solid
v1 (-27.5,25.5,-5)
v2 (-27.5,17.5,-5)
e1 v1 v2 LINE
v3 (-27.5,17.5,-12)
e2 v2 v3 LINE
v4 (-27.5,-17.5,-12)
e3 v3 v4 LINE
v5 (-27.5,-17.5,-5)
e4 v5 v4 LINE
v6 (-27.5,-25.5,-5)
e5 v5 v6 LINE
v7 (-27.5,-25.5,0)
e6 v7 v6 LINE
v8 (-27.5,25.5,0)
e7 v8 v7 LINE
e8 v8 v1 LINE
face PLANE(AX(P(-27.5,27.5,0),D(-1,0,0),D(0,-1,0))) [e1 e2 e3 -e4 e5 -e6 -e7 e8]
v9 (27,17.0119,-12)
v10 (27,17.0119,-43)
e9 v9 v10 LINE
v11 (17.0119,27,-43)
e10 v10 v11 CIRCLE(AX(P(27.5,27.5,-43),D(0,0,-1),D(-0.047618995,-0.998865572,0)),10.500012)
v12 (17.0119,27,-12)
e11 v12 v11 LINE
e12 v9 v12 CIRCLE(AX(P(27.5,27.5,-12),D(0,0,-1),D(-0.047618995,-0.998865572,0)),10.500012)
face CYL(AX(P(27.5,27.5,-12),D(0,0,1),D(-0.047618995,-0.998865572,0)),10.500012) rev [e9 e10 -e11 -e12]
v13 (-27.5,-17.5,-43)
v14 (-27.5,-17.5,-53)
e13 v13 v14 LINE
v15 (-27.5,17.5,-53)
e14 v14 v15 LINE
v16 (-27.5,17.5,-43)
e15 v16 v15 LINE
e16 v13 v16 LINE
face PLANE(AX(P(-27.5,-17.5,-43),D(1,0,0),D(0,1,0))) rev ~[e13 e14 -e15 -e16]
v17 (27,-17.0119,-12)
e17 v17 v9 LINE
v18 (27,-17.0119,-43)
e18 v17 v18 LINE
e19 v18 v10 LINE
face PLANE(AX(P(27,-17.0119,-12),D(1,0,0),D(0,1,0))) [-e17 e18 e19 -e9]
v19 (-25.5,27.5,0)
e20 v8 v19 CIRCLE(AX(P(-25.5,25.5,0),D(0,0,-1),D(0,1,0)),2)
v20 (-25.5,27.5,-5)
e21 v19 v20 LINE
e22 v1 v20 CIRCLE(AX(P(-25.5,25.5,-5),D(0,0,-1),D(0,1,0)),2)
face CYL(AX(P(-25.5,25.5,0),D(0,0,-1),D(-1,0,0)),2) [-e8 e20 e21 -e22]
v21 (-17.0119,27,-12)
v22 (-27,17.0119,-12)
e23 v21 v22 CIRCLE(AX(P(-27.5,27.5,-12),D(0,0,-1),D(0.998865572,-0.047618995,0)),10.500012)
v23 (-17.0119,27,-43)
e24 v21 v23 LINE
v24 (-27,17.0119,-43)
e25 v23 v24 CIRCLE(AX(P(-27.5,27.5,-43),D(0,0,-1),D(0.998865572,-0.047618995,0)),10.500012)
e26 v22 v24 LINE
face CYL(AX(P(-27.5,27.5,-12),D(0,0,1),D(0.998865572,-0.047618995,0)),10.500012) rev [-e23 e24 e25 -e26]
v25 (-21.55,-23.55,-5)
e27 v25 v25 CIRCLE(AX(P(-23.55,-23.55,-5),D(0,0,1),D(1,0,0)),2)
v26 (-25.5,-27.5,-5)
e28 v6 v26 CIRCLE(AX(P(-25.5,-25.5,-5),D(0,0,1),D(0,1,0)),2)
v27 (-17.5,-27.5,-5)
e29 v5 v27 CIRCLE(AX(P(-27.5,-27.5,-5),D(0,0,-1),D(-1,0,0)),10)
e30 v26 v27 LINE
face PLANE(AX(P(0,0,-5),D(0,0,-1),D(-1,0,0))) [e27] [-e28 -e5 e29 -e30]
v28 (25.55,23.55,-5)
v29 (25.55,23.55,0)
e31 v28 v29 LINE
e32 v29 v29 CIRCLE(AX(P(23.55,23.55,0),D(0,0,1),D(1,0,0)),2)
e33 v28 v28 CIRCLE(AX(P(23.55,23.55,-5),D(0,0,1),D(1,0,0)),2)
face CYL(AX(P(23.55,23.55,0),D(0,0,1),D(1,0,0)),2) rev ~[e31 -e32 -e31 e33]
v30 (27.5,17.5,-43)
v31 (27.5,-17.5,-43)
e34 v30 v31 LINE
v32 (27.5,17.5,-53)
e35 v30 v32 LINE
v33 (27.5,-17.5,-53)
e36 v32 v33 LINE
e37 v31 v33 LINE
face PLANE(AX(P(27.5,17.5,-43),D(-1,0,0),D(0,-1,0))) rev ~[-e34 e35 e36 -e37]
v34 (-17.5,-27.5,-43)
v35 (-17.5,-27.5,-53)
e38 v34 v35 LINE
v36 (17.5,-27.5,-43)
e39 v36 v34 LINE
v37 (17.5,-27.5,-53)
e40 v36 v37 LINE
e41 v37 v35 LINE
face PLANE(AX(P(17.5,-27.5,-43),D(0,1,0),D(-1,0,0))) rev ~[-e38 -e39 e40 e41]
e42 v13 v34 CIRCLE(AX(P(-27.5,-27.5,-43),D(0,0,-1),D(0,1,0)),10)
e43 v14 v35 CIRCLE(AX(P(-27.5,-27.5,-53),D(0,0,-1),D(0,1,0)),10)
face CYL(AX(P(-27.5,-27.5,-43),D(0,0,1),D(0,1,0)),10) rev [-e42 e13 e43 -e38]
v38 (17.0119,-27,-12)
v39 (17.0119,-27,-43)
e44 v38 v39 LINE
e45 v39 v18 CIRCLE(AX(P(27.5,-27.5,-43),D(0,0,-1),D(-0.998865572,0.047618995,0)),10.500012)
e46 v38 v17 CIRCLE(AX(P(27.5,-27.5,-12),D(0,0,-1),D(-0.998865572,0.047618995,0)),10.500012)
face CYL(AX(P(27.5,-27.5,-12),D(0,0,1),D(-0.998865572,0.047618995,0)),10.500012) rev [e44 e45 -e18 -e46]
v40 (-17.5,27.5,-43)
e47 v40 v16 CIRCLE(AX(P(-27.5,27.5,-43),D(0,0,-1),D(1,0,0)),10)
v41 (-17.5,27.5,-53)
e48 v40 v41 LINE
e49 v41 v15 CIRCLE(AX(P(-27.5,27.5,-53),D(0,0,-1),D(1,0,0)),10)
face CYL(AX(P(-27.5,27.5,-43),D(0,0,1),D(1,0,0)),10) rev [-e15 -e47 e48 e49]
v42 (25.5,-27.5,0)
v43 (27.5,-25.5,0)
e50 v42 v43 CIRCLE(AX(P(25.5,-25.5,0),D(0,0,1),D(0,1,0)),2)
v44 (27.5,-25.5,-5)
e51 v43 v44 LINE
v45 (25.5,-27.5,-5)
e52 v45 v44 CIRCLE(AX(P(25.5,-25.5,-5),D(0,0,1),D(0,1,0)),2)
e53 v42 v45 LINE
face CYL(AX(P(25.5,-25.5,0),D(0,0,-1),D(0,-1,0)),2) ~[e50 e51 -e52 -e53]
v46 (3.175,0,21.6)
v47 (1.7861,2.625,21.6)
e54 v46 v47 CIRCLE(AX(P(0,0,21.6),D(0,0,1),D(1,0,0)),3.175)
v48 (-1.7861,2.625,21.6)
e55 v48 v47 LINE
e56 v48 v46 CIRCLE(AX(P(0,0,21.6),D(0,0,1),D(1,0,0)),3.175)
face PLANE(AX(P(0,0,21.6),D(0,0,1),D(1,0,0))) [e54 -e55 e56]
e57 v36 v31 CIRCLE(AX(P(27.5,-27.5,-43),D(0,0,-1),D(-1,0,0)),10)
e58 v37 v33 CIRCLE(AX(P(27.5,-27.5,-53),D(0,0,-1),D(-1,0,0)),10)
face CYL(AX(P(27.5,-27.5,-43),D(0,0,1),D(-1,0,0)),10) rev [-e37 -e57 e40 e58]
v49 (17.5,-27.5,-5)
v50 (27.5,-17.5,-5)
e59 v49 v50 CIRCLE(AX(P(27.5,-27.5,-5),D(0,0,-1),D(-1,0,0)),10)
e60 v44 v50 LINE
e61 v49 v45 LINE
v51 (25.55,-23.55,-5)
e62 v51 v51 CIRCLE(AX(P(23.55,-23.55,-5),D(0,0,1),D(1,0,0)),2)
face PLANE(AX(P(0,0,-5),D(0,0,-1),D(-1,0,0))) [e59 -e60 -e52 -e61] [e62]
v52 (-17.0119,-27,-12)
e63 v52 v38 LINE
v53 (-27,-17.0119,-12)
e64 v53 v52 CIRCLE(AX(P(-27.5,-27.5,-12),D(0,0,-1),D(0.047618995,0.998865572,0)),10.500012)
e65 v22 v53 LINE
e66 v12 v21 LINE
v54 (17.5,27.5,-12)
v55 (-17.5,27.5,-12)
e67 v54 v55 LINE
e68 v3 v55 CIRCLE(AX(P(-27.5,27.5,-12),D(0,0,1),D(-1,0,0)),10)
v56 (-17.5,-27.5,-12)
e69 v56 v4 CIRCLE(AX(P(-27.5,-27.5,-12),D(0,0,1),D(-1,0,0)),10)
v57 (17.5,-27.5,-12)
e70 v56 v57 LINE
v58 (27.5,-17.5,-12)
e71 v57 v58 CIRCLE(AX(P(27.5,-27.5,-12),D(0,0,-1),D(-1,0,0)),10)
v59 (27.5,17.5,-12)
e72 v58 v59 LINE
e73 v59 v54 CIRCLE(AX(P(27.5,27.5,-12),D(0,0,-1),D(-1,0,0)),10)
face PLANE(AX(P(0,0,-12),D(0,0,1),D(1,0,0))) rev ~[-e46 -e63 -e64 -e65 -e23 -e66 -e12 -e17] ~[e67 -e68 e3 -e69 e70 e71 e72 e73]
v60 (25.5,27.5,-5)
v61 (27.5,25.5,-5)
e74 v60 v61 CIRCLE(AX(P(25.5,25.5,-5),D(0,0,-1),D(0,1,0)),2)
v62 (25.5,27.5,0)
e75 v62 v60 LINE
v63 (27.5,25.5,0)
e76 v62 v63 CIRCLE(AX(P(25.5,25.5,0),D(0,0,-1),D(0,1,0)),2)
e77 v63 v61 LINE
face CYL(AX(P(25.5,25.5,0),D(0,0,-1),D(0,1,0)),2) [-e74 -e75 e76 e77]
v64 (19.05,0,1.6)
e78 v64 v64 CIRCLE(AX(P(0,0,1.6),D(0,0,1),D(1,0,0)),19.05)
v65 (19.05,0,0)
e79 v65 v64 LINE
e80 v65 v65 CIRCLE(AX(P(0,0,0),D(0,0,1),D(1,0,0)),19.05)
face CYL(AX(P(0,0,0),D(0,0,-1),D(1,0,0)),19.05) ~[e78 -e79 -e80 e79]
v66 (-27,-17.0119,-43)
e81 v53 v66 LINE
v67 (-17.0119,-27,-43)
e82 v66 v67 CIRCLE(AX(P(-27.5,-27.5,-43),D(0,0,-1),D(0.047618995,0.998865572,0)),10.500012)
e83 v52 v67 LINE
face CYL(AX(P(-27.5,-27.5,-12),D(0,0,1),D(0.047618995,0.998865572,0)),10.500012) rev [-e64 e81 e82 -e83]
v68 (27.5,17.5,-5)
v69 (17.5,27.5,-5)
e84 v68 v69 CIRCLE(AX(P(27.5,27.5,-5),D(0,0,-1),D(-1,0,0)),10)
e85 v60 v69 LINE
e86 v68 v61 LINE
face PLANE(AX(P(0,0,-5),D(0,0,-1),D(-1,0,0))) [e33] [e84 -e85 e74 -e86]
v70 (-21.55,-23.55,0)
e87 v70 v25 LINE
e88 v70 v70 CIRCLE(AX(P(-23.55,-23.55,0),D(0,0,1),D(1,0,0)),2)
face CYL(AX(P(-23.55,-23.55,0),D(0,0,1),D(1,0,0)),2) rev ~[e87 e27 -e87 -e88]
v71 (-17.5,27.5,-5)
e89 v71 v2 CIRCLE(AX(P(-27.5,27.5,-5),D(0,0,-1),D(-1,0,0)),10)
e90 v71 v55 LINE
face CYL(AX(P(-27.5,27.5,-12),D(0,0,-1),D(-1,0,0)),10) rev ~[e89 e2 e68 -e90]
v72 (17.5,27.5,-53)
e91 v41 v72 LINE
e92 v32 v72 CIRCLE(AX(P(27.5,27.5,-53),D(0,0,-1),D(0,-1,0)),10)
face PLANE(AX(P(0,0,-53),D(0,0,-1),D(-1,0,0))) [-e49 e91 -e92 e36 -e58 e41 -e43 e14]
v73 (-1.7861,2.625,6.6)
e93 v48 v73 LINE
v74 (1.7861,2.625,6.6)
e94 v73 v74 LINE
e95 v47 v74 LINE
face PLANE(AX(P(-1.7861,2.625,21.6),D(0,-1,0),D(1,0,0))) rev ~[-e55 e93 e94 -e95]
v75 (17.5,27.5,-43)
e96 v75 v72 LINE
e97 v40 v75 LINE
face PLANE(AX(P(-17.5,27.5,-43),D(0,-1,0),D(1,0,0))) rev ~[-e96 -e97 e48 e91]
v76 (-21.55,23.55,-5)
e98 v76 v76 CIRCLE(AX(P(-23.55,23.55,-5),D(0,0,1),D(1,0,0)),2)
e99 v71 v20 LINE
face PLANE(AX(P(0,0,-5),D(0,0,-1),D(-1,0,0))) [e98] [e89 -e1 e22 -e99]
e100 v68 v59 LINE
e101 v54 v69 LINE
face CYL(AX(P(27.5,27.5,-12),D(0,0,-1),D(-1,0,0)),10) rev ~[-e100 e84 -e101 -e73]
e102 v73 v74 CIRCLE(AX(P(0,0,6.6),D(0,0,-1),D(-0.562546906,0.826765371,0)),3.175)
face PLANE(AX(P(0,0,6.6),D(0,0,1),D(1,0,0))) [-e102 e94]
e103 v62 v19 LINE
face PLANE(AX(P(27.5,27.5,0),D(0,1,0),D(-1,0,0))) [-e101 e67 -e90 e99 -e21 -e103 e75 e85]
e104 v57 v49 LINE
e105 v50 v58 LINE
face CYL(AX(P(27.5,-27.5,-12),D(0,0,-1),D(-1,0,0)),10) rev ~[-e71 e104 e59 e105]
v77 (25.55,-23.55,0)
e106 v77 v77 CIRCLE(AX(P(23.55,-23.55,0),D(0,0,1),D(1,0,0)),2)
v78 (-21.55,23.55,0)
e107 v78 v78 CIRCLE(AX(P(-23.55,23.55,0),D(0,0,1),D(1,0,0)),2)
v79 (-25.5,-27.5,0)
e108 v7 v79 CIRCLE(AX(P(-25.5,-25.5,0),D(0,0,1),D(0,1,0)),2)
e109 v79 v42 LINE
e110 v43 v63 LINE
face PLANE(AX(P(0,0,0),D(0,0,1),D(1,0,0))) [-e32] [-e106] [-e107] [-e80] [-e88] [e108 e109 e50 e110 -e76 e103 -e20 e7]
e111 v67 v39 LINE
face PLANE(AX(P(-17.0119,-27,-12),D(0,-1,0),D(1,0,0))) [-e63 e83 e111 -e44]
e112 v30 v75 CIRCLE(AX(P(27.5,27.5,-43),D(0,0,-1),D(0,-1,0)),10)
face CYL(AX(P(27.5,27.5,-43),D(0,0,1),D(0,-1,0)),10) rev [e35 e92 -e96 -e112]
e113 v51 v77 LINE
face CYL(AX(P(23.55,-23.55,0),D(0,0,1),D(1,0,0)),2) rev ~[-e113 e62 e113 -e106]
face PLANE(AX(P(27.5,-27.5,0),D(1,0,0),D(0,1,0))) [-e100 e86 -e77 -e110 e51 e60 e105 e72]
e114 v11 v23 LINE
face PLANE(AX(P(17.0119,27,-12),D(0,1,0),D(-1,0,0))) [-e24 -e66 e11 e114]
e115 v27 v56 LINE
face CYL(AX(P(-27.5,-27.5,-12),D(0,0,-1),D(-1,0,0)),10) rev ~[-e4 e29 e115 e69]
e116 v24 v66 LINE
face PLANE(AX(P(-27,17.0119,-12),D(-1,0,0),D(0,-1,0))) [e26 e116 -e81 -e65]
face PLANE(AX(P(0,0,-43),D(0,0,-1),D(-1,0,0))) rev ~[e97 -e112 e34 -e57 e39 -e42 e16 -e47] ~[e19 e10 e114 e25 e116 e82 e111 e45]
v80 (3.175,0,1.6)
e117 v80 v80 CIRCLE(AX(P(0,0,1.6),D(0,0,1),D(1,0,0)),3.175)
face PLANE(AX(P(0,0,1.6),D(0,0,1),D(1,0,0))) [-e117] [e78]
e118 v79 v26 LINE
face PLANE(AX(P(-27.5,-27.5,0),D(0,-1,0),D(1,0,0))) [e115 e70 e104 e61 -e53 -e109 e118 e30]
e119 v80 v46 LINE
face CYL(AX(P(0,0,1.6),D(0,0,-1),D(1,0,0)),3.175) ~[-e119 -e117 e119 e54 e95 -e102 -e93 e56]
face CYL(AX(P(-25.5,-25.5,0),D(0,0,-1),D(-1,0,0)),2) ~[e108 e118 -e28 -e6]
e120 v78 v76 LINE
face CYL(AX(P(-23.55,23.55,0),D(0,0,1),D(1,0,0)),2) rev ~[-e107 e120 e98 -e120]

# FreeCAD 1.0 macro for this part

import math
import FreeCAD as App
import Part
import Sketcher
Q = App.Units.Quantity


def edges_at(feature, points):
    """Names of the edges that pass closest to the given points."""
    edges = feature.Shape.Edges
    near = lambda p: min(range(len(edges)), key=lambda i: edges[i].distToShape(Part.Vertex(*p))[0])
    return sorted({f"Edge{near(p) + 1}" for p in points})


def add_polygon(sketch, points):
    """Adds a closed chain of lines whose ends are joined by coincident constraints."""
    first, n = sketch.GeometryCount, len(points)
    for a, b in zip(points, points[1:] + points[:1]):
        sketch.addGeometry(Part.LineSegment(App.Vector(*a, 0), App.Vector(*b, 0)), False)
    for i in range(n):
        sketch.addConstraint(Sketcher.Constraint("Coincident", first + i, 2, first + (i + 1) % n, 1))

doc = App.newDocument("Part")
body = doc.addObject("PartDesign::Body", "Body")

# Sketch on XY plane
sketch1 = doc.addObject("Sketcher::SketchObject", "Sketch")
body.addObject(sketch1)
sketch1.AttachmentSupport = (doc.XY_Plane, [""])
sketch1.MapMode = "FlatFace"
add_polygon(sketch1, [(-28, 28), (-28, -28), (28, -28), (28, 28)])  # lines 0-3
sketch1.addConstraint(Sketcher.Constraint("Vertical", 0))
sketch1.addConstraint(Sketcher.Constraint("Horizontal", 1))
sketch1.addConstraint(Sketcher.Constraint("Vertical", 2))
sketch1.addConstraint(Sketcher.Constraint("Horizontal", 3))
sketch1.addConstraint(Sketcher.Constraint("Symmetric", 0, 2, 2, 2, -1, 1))
sketch1.addConstraint(Sketcher.Constraint("Equal", 3, 0))
sketch1.addConstraint(Sketcher.Constraint("DistanceX", 1, 1, 1, 2, Q("55 mm")))
pad1 = doc.addObject("PartDesign::Pad", "Pad")
body.addObject(pad1)
pad1.Profile = sketch1
pad1.Length = 12
pad1.Reversed = True

# Sketch on XY plane
sketch2 = doc.addObject("Sketcher::SketchObject", "Sketch001")
body.addObject(sketch2)
sketch2.AttachmentSupport = (doc.XY_Plane, [""])
sketch2.MapMode = "FlatFace"
sketch2.AttachmentOffset = App.Placement(App.Vector(0, 0, -12), App.Rotation())
sketch2.addGeometry(Part.Circle(App.Vector(-28, 28, 0), App.Vector(0, 0, 1), 10), False)
sketch2.addGeometry(Part.Circle(App.Vector(28, 28, 0), App.Vector(0, 0, 1), 10), False)
sketch2.addGeometry(Part.Circle(App.Vector(-28, -28, 0), App.Vector(0, 0, 1), 10), False)
sketch2.addGeometry(Part.Circle(App.Vector(28, -28, 0), App.Vector(0, 0, 1), 10), False)
sketch2.addConstraint(Sketcher.Constraint("Equal", 0, 1))
sketch2.addConstraint(Sketcher.Constraint("Equal", 1, 2))
sketch2.addConstraint(Sketcher.Constraint("Equal", 2, 3))
sketch2.addConstraint(Sketcher.Constraint("Symmetric", 1, 3, 2, 3, -1, 1))
sketch2.addConstraint(Sketcher.Constraint("Symmetric", 0, 3, 3, 3, -1, 1))
sketch2.addConstraint(Sketcher.Constraint("Symmetric", 0, 3, 1, 3, -2))
sketch2.addConstraint(Sketcher.Constraint("Diameter", 0, Q("20 mm")))
sketch2.addConstraint(Sketcher.Constraint("DistanceX", 0, 3, 1, 3, Q("55 mm")))
sketch2.addConstraint(Sketcher.Constraint("DistanceY", 2, 3, 0, 3, Q("55 mm")))
pocket1 = doc.addObject("PartDesign::Pocket", "Pocket")
body.addObject(pocket1)
pocket1.Profile = sketch2
pocket1.Length = 7
pocket1.Reversed = True

# Sketch on XY plane
sketch3 = doc.addObject("Sketcher::SketchObject", "Sketch002")
body.addObject(sketch3)
sketch3.AttachmentSupport = (doc.XY_Plane, [""])
sketch3.MapMode = "FlatFace"
sketch3.AttachmentOffset = App.Placement(App.Vector(0, 0, -12), App.Rotation())
sketch3.addGeometry(Part.LineSegment(App.Vector(-17, 27, 0), App.Vector(17, 27, 0)), False)
sketch3.addGeometry(Part.ArcOfCircle(Part.Circle(App.Vector(28, 28, 0), App.Vector(0, 0, 1), 11), math.radians(-177), math.radians(-93)), False)
sketch3.addGeometry(Part.LineSegment(App.Vector(27, 17, 0), App.Vector(27, -17, 0)), False)
sketch3.addGeometry(Part.ArcOfCircle(Part.Circle(App.Vector(28, -28, 0), App.Vector(0, 0, 1), 11), math.radians(93), math.radians(177)), False)
sketch3.addGeometry(Part.LineSegment(App.Vector(17, -27, 0), App.Vector(-17, -27, 0)), False)
sketch3.addGeometry(Part.ArcOfCircle(Part.Circle(App.Vector(-28, -28, 0), App.Vector(0, 0, 1), 11), math.radians(3), math.radians(87)), False)
sketch3.addGeometry(Part.LineSegment(App.Vector(-27, -17, 0), App.Vector(-27, 17, 0)), False)
sketch3.addGeometry(Part.ArcOfCircle(Part.Circle(App.Vector(-28, 28, 0), App.Vector(0, 0, 1), 11), math.radians(-87), math.radians(-3)), False)
sketch3.addConstraint(Sketcher.Constraint("Coincident", 0, 2, 1, 1))
sketch3.addConstraint(Sketcher.Constraint("Coincident", 1, 2, 2, 1))
sketch3.addConstraint(Sketcher.Constraint("Coincident", 2, 2, 3, 1))
sketch3.addConstraint(Sketcher.Constraint("Coincident", 3, 2, 4, 1))
sketch3.addConstraint(Sketcher.Constraint("Coincident", 4, 2, 5, 1))
sketch3.addConstraint(Sketcher.Constraint("Coincident", 5, 2, 6, 1))
sketch3.addConstraint(Sketcher.Constraint("Coincident", 6, 2, 7, 1))
sketch3.addConstraint(Sketcher.Constraint("Coincident", 7, 2, 0, 1))
sketch3.addConstraint(Sketcher.Constraint("Horizontal", 0))
sketch3.addConstraint(Sketcher.Constraint("Vertical", 2))
sketch3.addConstraint(Sketcher.Constraint("Horizontal", 4))
sketch3.addConstraint(Sketcher.Constraint("Vertical", 6))
sketch3.addConstraint(Sketcher.Constraint("Equal", 1, 3))
sketch3.addConstraint(Sketcher.Constraint("Equal", 3, 5))
sketch3.addConstraint(Sketcher.Constraint("Equal", 5, 7))
sketch3.addConstraint(Sketcher.Constraint("Symmetric", 1, 3, 5, 3, -1, 1))
sketch3.addConstraint(Sketcher.Constraint("Symmetric", 3, 3, 7, 3, -1, 1))
sketch3.addConstraint(Sketcher.Constraint("Symmetric", 3, 3, 5, 3, -2))
sketch3.addConstraint(Sketcher.Constraint("Horizontal", 2, 2, 5, 2))
sketch3.addConstraint(Sketcher.Constraint("Vertical", 0, 2, 3, 2))
sketch3.addConstraint(Sketcher.Constraint("Equal", 4, 2))
sketch3.addConstraint(Sketcher.Constraint("Radius", 1, Q("10.5 mm")))
sketch3.addConstraint(Sketcher.Constraint("DistanceY", 0, 2, 1, 3, Q("0.5 mm")))
sketch3.addConstraint(Sketcher.Constraint("DistanceX", 1, 2, 1, 3, Q("0.5 mm")))
sketch3.addConstraint(Sketcher.Constraint("DistanceY", -1, 1, 0, 2, Q("27 mm")))
pad2 = doc.addObject("PartDesign::Pad", "Pad001")
body.addObject(pad2)
pad2.Profile = sketch3
pad2.Length = 31
pad2.Reversed = True

# Sketch on XY plane
sketch4 = doc.addObject("Sketcher::SketchObject", "Sketch003")
body.addObject(sketch4)
sketch4.AttachmentSupport = (doc.XY_Plane, [""])
sketch4.MapMode = "FlatFace"
sketch4.AttachmentOffset = App.Placement(App.Vector(0, 0, -43), App.Rotation())
sketch4.addGeometry(Part.ArcOfCircle(Part.Circle(App.Vector(-28, -28, 0), App.Vector(0, 0, 1), 10), math.radians(0), math.radians(90)), False)
sketch4.addGeometry(Part.LineSegment(App.Vector(-28, -18, 0), App.Vector(-28, 18, 0)), False)
sketch4.addGeometry(Part.ArcOfCircle(Part.Circle(App.Vector(-28, 28, 0), App.Vector(0, 0, 1), 10), math.radians(-90), math.radians(0)), False)
sketch4.addGeometry(Part.LineSegment(App.Vector(-18, 28, 0), App.Vector(18, 28, 0)), False)
sketch4.addGeometry(Part.ArcOfCircle(Part.Circle(App.Vector(28, 28, 0), App.Vector(0, 0, 1), 10), math.radians(180), math.radians(270)), False)
sketch4.addGeometry(Part.LineSegment(App.Vector(28, 18, 0), App.Vector(28, -18, 0)), False)
sketch4.addGeometry(Part.ArcOfCircle(Part.Circle(App.Vector(28, -28, 0), App.Vector(0, 0, 1), 10), math.radians(90), math.radians(180)), False)
sketch4.addGeometry(Part.LineSegment(App.Vector(18, -28, 0), App.Vector(-18, -28, 0)), False)
sketch4.addConstraint(Sketcher.Constraint("Coincident", 0, 2, 1, 1))
sketch4.addConstraint(Sketcher.Constraint("Coincident", 1, 2, 2, 1))
sketch4.addConstraint(Sketcher.Constraint("Coincident", 2, 2, 3, 1))
sketch4.addConstraint(Sketcher.Constraint("Coincident", 3, 2, 4, 1))
sketch4.addConstraint(Sketcher.Constraint("Coincident", 4, 2, 5, 1))
sketch4.addConstraint(Sketcher.Constraint("Coincident", 5, 2, 6, 1))
sketch4.addConstraint(Sketcher.Constraint("Coincident", 6, 2, 7, 1))
sketch4.addConstraint(Sketcher.Constraint("Coincident", 7, 2, 0, 1))
sketch4.addConstraint(Sketcher.Constraint("Vertical", 1))
sketch4.addConstraint(Sketcher.Constraint("Horizontal", 3))
sketch4.addConstraint(Sketcher.Constraint("Vertical", 5))
sketch4.addConstraint(Sketcher.Constraint("Horizontal", 7))
sketch4.addConstraint(Sketcher.Constraint("Equal", 0, 2))
sketch4.addConstraint(Sketcher.Constraint("Equal", 2, 4))
sketch4.addConstraint(Sketcher.Constraint("Equal", 4, 6))
sketch4.addConstraint(Sketcher.Constraint("Symmetric", 0, 3, 4, 3, -1, 1))
sketch4.addConstraint(Sketcher.Constraint("Symmetric", 2, 3, 6, 3, -1, 1))
sketch4.addConstraint(Sketcher.Constraint("Symmetric", 2, 3, 4, 3, -2))
sketch4.addConstraint(Sketcher.Constraint("Horizontal", 4, 3, 2, 2))
sketch4.addConstraint(Sketcher.Constraint("Horizontal", 0, 3, 6, 2))
sketch4.addConstraint(Sketcher.Constraint("Vertical", 2, 3, 0, 2))
sketch4.addConstraint(Sketcher.Constraint("Vertical", 6, 3, 4, 2))
sketch4.addConstraint(Sketcher.Constraint("Equal", 7, 1))
sketch4.addConstraint(Sketcher.Constraint("Radius", 0, Q("10 mm")))
sketch4.addConstraint(Sketcher.Constraint("DistanceX", 3, 1, 3, 2, Q("35 mm")))
pad3 = doc.addObject("PartDesign::Pad", "Pad002")
body.addObject(pad3)
pad3.Profile = sketch4
pad3.Length = 10
pad3.Reversed = True

# Sketch on XY plane
sketch5 = doc.addObject("Sketcher::SketchObject", "Sketch004")
body.addObject(sketch5)
sketch5.AttachmentSupport = (doc.XY_Plane, [""])
sketch5.MapMode = "FlatFace"
sketch5.addGeometry(Part.Circle(App.Vector(-23.6, -23.6, 0), App.Vector(0, 0, 1), 2), False)
sketch5.addGeometry(Part.Circle(App.Vector(23.6, -23.6, 0), App.Vector(0, 0, 1), 2), False)
sketch5.addGeometry(Part.Circle(App.Vector(-23.6, 23.6, 0), App.Vector(0, 0, 1), 2), False)
sketch5.addGeometry(Part.Circle(App.Vector(23.6, 23.6, 0), App.Vector(0, 0, 1), 2), False)
sketch5.addConstraint(Sketcher.Constraint("Equal", 0, 1))
sketch5.addConstraint(Sketcher.Constraint("Equal", 1, 2))
sketch5.addConstraint(Sketcher.Constraint("Equal", 2, 3))
sketch5.addConstraint(Sketcher.Constraint("Symmetric", 1, 3, 2, 3, -1, 1))
sketch5.addConstraint(Sketcher.Constraint("Symmetric", 0, 3, 3, 3, -1, 1))
sketch5.addConstraint(Sketcher.Constraint("Symmetric", 0, 3, 1, 3, -2))
sketch5.addConstraint(Sketcher.Constraint("Diameter", 0, Q("4 mm")))
sketch5.addConstraint(Sketcher.Constraint("DistanceX", 0, 3, 1, 3, Q("47.1 mm")))
sketch5.addConstraint(Sketcher.Constraint("DistanceY", 0, 3, 2, 3, Q("47.1 mm")))
pocket2 = doc.addObject("PartDesign::Pocket", "Pocket001")
body.addObject(pocket2)
pocket2.Profile = sketch5
pocket2.Type = "ThroughAll"
pocket2.Midplane = True
doc.recompute()

fillet = doc.addObject("PartDesign::Fillet", "Fillet")
body.addObject(fillet)
fillet.Base = (pocket2, edges_at(pocket2, [
    (27.5, 27.5, -2.5),
    (-27.5, 27.5, -2.5),
    (27.5, -27.5, -2.5),
    (-27.5, -27.5, -2.5),
]))
fillet.Radius = 2

# Sketch on XY plane
sketch6 = doc.addObject("Sketcher::SketchObject", "Sketch005")
body.addObject(sketch6)
sketch6.AttachmentSupport = (doc.XY_Plane, [""])
sketch6.MapMode = "FlatFace"
sketch6.addGeometry(Part.Circle(App.Vector(0, 0, 0), App.Vector(0, 0, 1), 19), False)
sketch6.addConstraint(Sketcher.Constraint("Coincident", 0, 3, -1, 1))
sketch6.addConstraint(Sketcher.Constraint("Diameter", 0, Q("38.1 mm")))
pad4 = doc.addObject("PartDesign::Pad", "Pad003")
body.addObject(pad4)
pad4.Profile = sketch6
pad4.Length = 1.6

# Sketch on XY plane
sketch7 = doc.addObject("Sketcher::SketchObject", "Sketch006")
body.addObject(sketch7)
sketch7.AttachmentSupport = (doc.XY_Plane, [""])
sketch7.MapMode = "FlatFace"
sketch7.AttachmentOffset = App.Placement(App.Vector(0, 0, 1.6), App.Rotation())
sketch7.addGeometry(Part.Circle(App.Vector(0, 0, 0), App.Vector(0, 0, 1), 3.2), False)
sketch7.addConstraint(Sketcher.Constraint("Coincident", 0, 3, -1, 1))
sketch7.addConstraint(Sketcher.Constraint("Diameter", 0, Q("6.35 mm")))
pad5 = doc.addObject("PartDesign::Pad", "Pad004")
body.addObject(pad5)
pad5.Profile = sketch7
pad5.Length = 20

# Sketch on XY plane
sketch8 = doc.addObject("Sketcher::SketchObject", "Sketch007")
body.addObject(sketch8)
sketch8.AttachmentSupport = (doc.XY_Plane, [""])
sketch8.MapMode = "FlatFace"
sketch8.AttachmentOffset = App.Placement(App.Vector(0, 0, 21.6), App.Rotation())
add_polygon(sketch8, [(-1.8, 2.6), (1.8, 2.6), (1.8, 3.2), (-1.8, 3.2)])  # lines 0-3
sketch8.addConstraint(Sketcher.Constraint("Horizontal", 0))
sketch8.addConstraint(Sketcher.Constraint("Vertical", 1))
sketch8.addConstraint(Sketcher.Constraint("Horizontal", 2))
sketch8.addConstraint(Sketcher.Constraint("Vertical", 3))
sketch8.addConstraint(Sketcher.Constraint("DistanceY", 1, 1, 1, 2, Q("0.55 mm")))
sketch8.addConstraint(Sketcher.Constraint("DistanceX", 0, 1, 0, 2, Q("3.5722 mm")))
sketch8.addConstraint(Sketcher.Constraint("DistanceX", -1, 1, 0, 2, Q("1.786 mm")))
sketch8.addConstraint(Sketcher.Constraint("DistanceY", -1, 1, 0, 2, Q("2.625 mm")))
pocket3 = doc.addObject("PartDesign::Pocket", "Pocket002")
body.addObject(pocket3)
pocket3.Profile = sketch8
pocket3.Length = 15

doc.recompute()
